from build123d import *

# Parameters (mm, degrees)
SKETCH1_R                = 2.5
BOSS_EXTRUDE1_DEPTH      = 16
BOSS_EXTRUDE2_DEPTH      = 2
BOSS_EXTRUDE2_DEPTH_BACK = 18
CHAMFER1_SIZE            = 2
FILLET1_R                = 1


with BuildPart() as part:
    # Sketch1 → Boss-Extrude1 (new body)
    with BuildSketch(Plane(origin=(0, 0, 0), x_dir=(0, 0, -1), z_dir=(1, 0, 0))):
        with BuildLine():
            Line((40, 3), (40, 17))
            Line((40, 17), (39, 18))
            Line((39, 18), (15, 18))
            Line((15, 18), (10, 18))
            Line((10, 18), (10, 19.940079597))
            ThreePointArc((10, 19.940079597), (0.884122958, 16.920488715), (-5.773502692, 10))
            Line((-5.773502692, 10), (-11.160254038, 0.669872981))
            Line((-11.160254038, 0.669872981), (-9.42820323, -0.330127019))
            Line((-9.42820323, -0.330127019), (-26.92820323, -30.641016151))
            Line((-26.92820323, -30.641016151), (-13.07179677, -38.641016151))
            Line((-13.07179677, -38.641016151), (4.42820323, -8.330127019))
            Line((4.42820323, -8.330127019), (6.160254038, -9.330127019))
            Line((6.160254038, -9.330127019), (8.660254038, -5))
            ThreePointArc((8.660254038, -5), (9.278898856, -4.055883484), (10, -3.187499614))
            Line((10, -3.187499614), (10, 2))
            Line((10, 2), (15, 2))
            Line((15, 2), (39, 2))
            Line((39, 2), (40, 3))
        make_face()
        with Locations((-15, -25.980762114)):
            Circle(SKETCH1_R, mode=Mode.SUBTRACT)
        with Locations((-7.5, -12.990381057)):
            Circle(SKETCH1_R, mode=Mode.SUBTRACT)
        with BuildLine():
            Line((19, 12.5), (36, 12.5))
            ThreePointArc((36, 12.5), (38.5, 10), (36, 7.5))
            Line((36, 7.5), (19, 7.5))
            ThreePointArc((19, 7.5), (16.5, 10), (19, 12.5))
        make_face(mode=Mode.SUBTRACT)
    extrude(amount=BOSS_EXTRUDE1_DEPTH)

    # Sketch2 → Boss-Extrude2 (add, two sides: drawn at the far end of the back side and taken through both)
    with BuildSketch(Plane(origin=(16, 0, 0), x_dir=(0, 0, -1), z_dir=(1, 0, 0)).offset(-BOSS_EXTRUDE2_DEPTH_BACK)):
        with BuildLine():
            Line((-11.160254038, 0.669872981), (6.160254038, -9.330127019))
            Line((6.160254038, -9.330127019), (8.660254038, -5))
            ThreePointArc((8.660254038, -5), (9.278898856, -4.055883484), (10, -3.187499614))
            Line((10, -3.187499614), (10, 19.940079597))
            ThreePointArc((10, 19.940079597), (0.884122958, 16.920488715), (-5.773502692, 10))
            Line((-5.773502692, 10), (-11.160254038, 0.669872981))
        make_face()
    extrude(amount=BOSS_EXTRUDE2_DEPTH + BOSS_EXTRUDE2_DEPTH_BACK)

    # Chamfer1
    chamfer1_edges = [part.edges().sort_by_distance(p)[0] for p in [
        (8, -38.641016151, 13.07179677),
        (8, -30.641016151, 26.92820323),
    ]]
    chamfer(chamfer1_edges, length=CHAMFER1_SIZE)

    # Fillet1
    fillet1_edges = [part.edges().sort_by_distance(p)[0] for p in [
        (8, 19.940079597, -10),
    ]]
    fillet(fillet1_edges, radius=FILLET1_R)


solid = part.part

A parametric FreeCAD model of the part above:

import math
import FreeCAD as App
import Part
import Sketcher
from FreeCAD import Vector
Q = App.Units.Quantity


def edges_at(feature, points):
    """Names of the edges that pass closest to the given points."""
    edges = feature.Shape.Edges
    near = lambda p: min(range(len(edges)), key=lambda i: edges[i].distToShape(Part.Vertex(*p))[0])
    return sorted({f"Edge{near(p) + 1}" for p in points})

doc = App.newDocument("Part")
body = doc.addObject("PartDesign::Body", "Body")

# Sketch on YZ plane
sketch1 = body.newObject("Sketcher::SketchObject", "Sketch")
sketch1.AttachmentSupport = (doc.getObject("YZ_Plane"), [""])
sketch1.MapMode = "FlatFace"
sketch1.addGeometry([
    Part.LineSegment(Vector(3, -40, 0), Vector(17, -40, 0)),  # 0
    Part.LineSegment(Vector(17, -40, 0), Vector(18, -39, 0)),  # 1
    Part.LineSegment(Vector(18, -39, 0), Vector(18, -10, 0)),  # 2
    Part.LineSegment(Vector(18, -10, 0), Vector(19.9, -10, 0)),  # 3
    Part.ArcOfCircle(Part.Circle(Vector(0, -11.5, 0), Vector(0, 0, 1), 20), math.radians(4), math.radians(60)),  # 4
    Part.LineSegment(Vector(10, 5.8, 0), Vector(0.7, 11.2, 0)),  # 5
    Part.LineSegment(Vector(0.7, 11.2, 0), Vector(-0.3, 9.4, 0)),  # 6
    Part.LineSegment(Vector(-0.3, 9.4, 0), Vector(-30.6, 26.9, 0)),  # 7
    Part.LineSegment(Vector(-30.6, 26.9, 0), Vector(-38.6, 13.1, 0)),  # 8
    Part.LineSegment(Vector(-38.6, 13.1, 0), Vector(-8.3, -4.4, 0)),  # 9
    Part.LineSegment(Vector(-8.3, -4.4, 0), Vector(-9.3, -6.2, 0)),  # 10
    Part.LineSegment(Vector(-9.3, -6.2, 0), Vector(-5, -8.7, 0)),  # 11
    Part.ArcOfCircle(Part.Circle(Vector(-10, -17.3, 0), Vector(0, 0, 1), 10), math.radians(47.06), math.radians(60)),  # 12
    Part.LineSegment(Vector(-3.2, -10, 0), Vector(2, -10, 0)),  # 13
    Part.LineSegment(Vector(2, -10, 0), Vector(2, -39, 0)),  # 14
    Part.LineSegment(Vector(2, -39, 0), Vector(3, -40, 0)),  # 15
    Part.Circle(Vector(-26, 15, 0), Vector(0, 0, 1), 2.5),  # 16
    Part.Circle(Vector(-13, 7.5, 0), Vector(0, 0, 1), 2.5),  # 17
    Part.ArcOfCircle(Part.Circle(Vector(10, -19, 0), Vector(0, 0, 1), 2.5), math.radians(0), math.radians(180)),  # 18
    Part.LineSegment(Vector(12.5, -19, 0), Vector(12.5, -36, 0)),  # 19
    Part.ArcOfCircle(Part.Circle(Vector(10, -36, 0), Vector(0, 0, 1), 2.5), math.radians(180), math.radians(360)),  # 20
    Part.LineSegment(Vector(7.5, -36, 0), Vector(7.5, -19, 0)),  # 21
], False)
sketch1.addConstraint([
    Sketcher.Constraint("Coincident", 0, 2, 1, 1),
    Sketcher.Constraint("Coincident", 1, 2, 2, 1),
    Sketcher.Constraint("Coincident", 2, 2, 3, 1),
    Sketcher.Constraint("Coincident", 3, 2, 4, 1),
    Sketcher.Constraint("Tangent", 4, 2, 5, 1),
    Sketcher.Constraint("Coincident", 5, 2, 6, 1),
    Sketcher.Constraint("Coincident", 6, 2, 7, 1),
    Sketcher.Constraint("Coincident", 7, 2, 8, 1),
    Sketcher.Constraint("Coincident", 8, 2, 9, 1),
    Sketcher.Constraint("Coincident", 9, 2, 10, 1),
    Sketcher.Constraint("Coincident", 10, 2, 11, 1),
    Sketcher.Constraint("Tangent", 11, 2, 12, 2),
    Sketcher.Constraint("Coincident", 12, 1, 13, 1),
    Sketcher.Constraint("Coincident", 13, 2, 14, 1),
    Sketcher.Constraint("Coincident", 14, 2, 15, 1),
    Sketcher.Constraint("Coincident", 15, 2, 0, 1),
    Sketcher.Constraint("Tangent", 18, 1, 19, 1),
    Sketcher.Constraint("Tangent", 19, 2, 20, 2),
    Sketcher.Constraint("Tangent", 20, 1, 21, 1),
    Sketcher.Constraint("Tangent", 21, 2, 18, 2),
    Sketcher.Constraint("Horizontal", 0),
    Sketcher.Constraint("Vertical", 2),
    Sketcher.Constraint("Horizontal", 3),
    Sketcher.Constraint("Horizontal", 13),
    Sketcher.Constraint("Vertical", 14),
    Sketcher.Constraint("Vertical", 19),
    Sketcher.Constraint("Vertical", 21),
    Sketcher.Constraint("Equal", 16, 17),
    Sketcher.Constraint("Equal", 17, 18),
    Sketcher.Constraint("PointOnObject", 4, 3, -2),
    Sketcher.Constraint("Perpendicular", 5, 6),
    Sketcher.Constraint("Perpendicular", 6, 7),
    Sketcher.Constraint("Perpendicular", 7, 8),
    Sketcher.Constraint("Perpendicular", 8, 9),
    Sketcher.Constraint("Perpendicular", 9, 10),
    Sketcher.Constraint("Perpendicular", 10, 11),
    Sketcher.Constraint("Perpendicular", 1, 15),
    Sketcher.Constraint("Horizontal", 3, 2, 12, 1),
    Sketcher.Constraint("Horizontal", 1, 2, 14, 2),
    Sketcher.Constraint("Vertical", 20, 3, 4, 2),
    Sketcher.Constraint("Equal", 7, 9),
    Sketcher.Constraint("Equal", 6, 10),
    Sketcher.Constraint("Equal", 1, 15),
    Sketcher.Constraint("Diameter", 16, 5.0),
    Sketcher.Constraint("Radius", 4, 20.0),
    Sketcher.Constraint("Radius", 12, 10.0),
    Sketcher.Constraint("DistanceX", 0, 1, 0, 2, 14.0),
    Sketcher.Constraint("DistanceY", 2, 1, 2, 2, 29.0),
    Sketcher.Constraint("DistanceY", 19, 2, 19, 1, 17.0),
    Sketcher.Constraint("Angle", 5, Q("150 deg")),
    Sketcher.Constraint("Distance", 6, 2.0),
    Sketcher.Constraint("Distance", 7, 35.0),
    Sketcher.Constraint("Distance", 8, 16.0),
    Sketcher.Constraint("Distance", 11, 5.0),
    Sketcher.Constraint("DistanceX", 12, 3, -1, 1, 10.0),
    Sketcher.Constraint("DistanceY", -1, 1, 16, 3, 15.0),
    Sketcher.Constraint("DistanceY", 18, 3, -1, 1, 19.0),
    Sketcher.Constraint("DistanceX", -1, 1, 0, 2, 17.0),
    Sketcher.Constraint("DistanceY", 0, 2, -1, 1, 40.0),
    Sketcher.Constraint("DistanceX", -1, 1, 1, 2, 18.0),
    Sketcher.Constraint("DistanceY", -1, 1, 17, 3, 7.5),
    Sketcher.Constraint("DistanceX", 13, 1, 13, 2, 5.1875),
    Sketcher.Constraint("DistanceX", 17, 3, -1, 1, 12.990381),
    Sketcher.Constraint("DistanceX", 16, 3, 17, 3, 12.990381),
])
pad1 = body.newObject("PartDesign::Pad", "Pad")
pad1.Profile = sketch1
pad1.Length = 16

# Sketch on YZ plane
sketch2 = body.newObject("Sketcher::SketchObject", "Sketch001")
sketch2.AttachmentSupport = (doc.getObject("YZ_Plane"), [""])
sketch2.MapMode = "FlatFace"
sketch2.AttachmentOffset = App.Placement(Vector(0, 0, 16), App.Rotation())
sketch2.addGeometry([
    Part.LineSegment(Vector(0.7, 11.2, 0), Vector(-9.3, -6.2, 0)),  # 0
    Part.LineSegment(Vector(-9.3, -6.2, 0), Vector(-5, -8.7, 0)),  # 1
    Part.ArcOfCircle(Part.Circle(Vector(-10, -17.3, 0), Vector(0, 0, 1), 10), math.radians(47.06), math.radians(60)),  # 2
    Part.LineSegment(Vector(-3.2, -10, 0), Vector(19.9, -10, 0)),  # 3
    Part.ArcOfCircle(Part.Circle(Vector(0, -11.5, 0), Vector(0, 0, 1), 20), math.radians(4), math.radians(60)),  # 4
    Part.LineSegment(Vector(10, 5.8, 0), Vector(0.7, 11.2, 0)),  # 5
], False)
sketch2.addConstraint([
    Sketcher.Constraint("Coincident", 0, 2, 1, 1),
    Sketcher.Constraint("Tangent", 1, 2, 2, 2),
    Sketcher.Constraint("Coincident", 2, 1, 3, 1),
    Sketcher.Constraint("Coincident", 3, 2, 4, 1),
    Sketcher.Constraint("Tangent", 4, 2, 5, 1),
    Sketcher.Constraint("Coincident", 5, 2, 0, 1),
    Sketcher.Constraint("Horizontal", 3),
    Sketcher.Constraint("PointOnObject", 4, 3, -2),
    Sketcher.Constraint("Perpendicular", 0, 1),
    Sketcher.Constraint("Parallel", 1, 5),
    Sketcher.Constraint("Radius", 2, 10.0),
    Sketcher.Constraint("Radius", 4, 20.0),
    Sketcher.Constraint("Angle", 0, Q("-120 deg")),
    Sketcher.Constraint("Distance", 0, 20.0),
    Sketcher.Constraint("Distance", 1, 5.0),
    Sketcher.Constraint("DistanceX", 2, 3, -1, 1, 10.0),
    Sketcher.Constraint("DistanceY", 2, 1, -1, 1, 10.0),
    Sketcher.Constraint("DistanceX", 3, 1, 3, 2, 23.127579),
])
pad2 = body.newObject("PartDesign::Pad", "Pad001")
pad2.Profile = sketch2
pad2.Type = "TwoLengths"
pad2.Length = 2
pad2.Length2 = 18
doc.recompute()

chamfer = body.newObject("PartDesign::Chamfer", "Chamfer")
chamfer.Base = (pad2, edges_at(pad2, [(8, -38.641, 13.072), (8, -30.641, 26.928)]))
chamfer.Size = 2
doc.recompute()

fillet = body.newObject("PartDesign::Fillet", "Fillet")
fillet.Base = (chamfer, edges_at(chamfer, [(8, 19.94, -10)]))
fillet.Radius = 1

doc.recompute()
